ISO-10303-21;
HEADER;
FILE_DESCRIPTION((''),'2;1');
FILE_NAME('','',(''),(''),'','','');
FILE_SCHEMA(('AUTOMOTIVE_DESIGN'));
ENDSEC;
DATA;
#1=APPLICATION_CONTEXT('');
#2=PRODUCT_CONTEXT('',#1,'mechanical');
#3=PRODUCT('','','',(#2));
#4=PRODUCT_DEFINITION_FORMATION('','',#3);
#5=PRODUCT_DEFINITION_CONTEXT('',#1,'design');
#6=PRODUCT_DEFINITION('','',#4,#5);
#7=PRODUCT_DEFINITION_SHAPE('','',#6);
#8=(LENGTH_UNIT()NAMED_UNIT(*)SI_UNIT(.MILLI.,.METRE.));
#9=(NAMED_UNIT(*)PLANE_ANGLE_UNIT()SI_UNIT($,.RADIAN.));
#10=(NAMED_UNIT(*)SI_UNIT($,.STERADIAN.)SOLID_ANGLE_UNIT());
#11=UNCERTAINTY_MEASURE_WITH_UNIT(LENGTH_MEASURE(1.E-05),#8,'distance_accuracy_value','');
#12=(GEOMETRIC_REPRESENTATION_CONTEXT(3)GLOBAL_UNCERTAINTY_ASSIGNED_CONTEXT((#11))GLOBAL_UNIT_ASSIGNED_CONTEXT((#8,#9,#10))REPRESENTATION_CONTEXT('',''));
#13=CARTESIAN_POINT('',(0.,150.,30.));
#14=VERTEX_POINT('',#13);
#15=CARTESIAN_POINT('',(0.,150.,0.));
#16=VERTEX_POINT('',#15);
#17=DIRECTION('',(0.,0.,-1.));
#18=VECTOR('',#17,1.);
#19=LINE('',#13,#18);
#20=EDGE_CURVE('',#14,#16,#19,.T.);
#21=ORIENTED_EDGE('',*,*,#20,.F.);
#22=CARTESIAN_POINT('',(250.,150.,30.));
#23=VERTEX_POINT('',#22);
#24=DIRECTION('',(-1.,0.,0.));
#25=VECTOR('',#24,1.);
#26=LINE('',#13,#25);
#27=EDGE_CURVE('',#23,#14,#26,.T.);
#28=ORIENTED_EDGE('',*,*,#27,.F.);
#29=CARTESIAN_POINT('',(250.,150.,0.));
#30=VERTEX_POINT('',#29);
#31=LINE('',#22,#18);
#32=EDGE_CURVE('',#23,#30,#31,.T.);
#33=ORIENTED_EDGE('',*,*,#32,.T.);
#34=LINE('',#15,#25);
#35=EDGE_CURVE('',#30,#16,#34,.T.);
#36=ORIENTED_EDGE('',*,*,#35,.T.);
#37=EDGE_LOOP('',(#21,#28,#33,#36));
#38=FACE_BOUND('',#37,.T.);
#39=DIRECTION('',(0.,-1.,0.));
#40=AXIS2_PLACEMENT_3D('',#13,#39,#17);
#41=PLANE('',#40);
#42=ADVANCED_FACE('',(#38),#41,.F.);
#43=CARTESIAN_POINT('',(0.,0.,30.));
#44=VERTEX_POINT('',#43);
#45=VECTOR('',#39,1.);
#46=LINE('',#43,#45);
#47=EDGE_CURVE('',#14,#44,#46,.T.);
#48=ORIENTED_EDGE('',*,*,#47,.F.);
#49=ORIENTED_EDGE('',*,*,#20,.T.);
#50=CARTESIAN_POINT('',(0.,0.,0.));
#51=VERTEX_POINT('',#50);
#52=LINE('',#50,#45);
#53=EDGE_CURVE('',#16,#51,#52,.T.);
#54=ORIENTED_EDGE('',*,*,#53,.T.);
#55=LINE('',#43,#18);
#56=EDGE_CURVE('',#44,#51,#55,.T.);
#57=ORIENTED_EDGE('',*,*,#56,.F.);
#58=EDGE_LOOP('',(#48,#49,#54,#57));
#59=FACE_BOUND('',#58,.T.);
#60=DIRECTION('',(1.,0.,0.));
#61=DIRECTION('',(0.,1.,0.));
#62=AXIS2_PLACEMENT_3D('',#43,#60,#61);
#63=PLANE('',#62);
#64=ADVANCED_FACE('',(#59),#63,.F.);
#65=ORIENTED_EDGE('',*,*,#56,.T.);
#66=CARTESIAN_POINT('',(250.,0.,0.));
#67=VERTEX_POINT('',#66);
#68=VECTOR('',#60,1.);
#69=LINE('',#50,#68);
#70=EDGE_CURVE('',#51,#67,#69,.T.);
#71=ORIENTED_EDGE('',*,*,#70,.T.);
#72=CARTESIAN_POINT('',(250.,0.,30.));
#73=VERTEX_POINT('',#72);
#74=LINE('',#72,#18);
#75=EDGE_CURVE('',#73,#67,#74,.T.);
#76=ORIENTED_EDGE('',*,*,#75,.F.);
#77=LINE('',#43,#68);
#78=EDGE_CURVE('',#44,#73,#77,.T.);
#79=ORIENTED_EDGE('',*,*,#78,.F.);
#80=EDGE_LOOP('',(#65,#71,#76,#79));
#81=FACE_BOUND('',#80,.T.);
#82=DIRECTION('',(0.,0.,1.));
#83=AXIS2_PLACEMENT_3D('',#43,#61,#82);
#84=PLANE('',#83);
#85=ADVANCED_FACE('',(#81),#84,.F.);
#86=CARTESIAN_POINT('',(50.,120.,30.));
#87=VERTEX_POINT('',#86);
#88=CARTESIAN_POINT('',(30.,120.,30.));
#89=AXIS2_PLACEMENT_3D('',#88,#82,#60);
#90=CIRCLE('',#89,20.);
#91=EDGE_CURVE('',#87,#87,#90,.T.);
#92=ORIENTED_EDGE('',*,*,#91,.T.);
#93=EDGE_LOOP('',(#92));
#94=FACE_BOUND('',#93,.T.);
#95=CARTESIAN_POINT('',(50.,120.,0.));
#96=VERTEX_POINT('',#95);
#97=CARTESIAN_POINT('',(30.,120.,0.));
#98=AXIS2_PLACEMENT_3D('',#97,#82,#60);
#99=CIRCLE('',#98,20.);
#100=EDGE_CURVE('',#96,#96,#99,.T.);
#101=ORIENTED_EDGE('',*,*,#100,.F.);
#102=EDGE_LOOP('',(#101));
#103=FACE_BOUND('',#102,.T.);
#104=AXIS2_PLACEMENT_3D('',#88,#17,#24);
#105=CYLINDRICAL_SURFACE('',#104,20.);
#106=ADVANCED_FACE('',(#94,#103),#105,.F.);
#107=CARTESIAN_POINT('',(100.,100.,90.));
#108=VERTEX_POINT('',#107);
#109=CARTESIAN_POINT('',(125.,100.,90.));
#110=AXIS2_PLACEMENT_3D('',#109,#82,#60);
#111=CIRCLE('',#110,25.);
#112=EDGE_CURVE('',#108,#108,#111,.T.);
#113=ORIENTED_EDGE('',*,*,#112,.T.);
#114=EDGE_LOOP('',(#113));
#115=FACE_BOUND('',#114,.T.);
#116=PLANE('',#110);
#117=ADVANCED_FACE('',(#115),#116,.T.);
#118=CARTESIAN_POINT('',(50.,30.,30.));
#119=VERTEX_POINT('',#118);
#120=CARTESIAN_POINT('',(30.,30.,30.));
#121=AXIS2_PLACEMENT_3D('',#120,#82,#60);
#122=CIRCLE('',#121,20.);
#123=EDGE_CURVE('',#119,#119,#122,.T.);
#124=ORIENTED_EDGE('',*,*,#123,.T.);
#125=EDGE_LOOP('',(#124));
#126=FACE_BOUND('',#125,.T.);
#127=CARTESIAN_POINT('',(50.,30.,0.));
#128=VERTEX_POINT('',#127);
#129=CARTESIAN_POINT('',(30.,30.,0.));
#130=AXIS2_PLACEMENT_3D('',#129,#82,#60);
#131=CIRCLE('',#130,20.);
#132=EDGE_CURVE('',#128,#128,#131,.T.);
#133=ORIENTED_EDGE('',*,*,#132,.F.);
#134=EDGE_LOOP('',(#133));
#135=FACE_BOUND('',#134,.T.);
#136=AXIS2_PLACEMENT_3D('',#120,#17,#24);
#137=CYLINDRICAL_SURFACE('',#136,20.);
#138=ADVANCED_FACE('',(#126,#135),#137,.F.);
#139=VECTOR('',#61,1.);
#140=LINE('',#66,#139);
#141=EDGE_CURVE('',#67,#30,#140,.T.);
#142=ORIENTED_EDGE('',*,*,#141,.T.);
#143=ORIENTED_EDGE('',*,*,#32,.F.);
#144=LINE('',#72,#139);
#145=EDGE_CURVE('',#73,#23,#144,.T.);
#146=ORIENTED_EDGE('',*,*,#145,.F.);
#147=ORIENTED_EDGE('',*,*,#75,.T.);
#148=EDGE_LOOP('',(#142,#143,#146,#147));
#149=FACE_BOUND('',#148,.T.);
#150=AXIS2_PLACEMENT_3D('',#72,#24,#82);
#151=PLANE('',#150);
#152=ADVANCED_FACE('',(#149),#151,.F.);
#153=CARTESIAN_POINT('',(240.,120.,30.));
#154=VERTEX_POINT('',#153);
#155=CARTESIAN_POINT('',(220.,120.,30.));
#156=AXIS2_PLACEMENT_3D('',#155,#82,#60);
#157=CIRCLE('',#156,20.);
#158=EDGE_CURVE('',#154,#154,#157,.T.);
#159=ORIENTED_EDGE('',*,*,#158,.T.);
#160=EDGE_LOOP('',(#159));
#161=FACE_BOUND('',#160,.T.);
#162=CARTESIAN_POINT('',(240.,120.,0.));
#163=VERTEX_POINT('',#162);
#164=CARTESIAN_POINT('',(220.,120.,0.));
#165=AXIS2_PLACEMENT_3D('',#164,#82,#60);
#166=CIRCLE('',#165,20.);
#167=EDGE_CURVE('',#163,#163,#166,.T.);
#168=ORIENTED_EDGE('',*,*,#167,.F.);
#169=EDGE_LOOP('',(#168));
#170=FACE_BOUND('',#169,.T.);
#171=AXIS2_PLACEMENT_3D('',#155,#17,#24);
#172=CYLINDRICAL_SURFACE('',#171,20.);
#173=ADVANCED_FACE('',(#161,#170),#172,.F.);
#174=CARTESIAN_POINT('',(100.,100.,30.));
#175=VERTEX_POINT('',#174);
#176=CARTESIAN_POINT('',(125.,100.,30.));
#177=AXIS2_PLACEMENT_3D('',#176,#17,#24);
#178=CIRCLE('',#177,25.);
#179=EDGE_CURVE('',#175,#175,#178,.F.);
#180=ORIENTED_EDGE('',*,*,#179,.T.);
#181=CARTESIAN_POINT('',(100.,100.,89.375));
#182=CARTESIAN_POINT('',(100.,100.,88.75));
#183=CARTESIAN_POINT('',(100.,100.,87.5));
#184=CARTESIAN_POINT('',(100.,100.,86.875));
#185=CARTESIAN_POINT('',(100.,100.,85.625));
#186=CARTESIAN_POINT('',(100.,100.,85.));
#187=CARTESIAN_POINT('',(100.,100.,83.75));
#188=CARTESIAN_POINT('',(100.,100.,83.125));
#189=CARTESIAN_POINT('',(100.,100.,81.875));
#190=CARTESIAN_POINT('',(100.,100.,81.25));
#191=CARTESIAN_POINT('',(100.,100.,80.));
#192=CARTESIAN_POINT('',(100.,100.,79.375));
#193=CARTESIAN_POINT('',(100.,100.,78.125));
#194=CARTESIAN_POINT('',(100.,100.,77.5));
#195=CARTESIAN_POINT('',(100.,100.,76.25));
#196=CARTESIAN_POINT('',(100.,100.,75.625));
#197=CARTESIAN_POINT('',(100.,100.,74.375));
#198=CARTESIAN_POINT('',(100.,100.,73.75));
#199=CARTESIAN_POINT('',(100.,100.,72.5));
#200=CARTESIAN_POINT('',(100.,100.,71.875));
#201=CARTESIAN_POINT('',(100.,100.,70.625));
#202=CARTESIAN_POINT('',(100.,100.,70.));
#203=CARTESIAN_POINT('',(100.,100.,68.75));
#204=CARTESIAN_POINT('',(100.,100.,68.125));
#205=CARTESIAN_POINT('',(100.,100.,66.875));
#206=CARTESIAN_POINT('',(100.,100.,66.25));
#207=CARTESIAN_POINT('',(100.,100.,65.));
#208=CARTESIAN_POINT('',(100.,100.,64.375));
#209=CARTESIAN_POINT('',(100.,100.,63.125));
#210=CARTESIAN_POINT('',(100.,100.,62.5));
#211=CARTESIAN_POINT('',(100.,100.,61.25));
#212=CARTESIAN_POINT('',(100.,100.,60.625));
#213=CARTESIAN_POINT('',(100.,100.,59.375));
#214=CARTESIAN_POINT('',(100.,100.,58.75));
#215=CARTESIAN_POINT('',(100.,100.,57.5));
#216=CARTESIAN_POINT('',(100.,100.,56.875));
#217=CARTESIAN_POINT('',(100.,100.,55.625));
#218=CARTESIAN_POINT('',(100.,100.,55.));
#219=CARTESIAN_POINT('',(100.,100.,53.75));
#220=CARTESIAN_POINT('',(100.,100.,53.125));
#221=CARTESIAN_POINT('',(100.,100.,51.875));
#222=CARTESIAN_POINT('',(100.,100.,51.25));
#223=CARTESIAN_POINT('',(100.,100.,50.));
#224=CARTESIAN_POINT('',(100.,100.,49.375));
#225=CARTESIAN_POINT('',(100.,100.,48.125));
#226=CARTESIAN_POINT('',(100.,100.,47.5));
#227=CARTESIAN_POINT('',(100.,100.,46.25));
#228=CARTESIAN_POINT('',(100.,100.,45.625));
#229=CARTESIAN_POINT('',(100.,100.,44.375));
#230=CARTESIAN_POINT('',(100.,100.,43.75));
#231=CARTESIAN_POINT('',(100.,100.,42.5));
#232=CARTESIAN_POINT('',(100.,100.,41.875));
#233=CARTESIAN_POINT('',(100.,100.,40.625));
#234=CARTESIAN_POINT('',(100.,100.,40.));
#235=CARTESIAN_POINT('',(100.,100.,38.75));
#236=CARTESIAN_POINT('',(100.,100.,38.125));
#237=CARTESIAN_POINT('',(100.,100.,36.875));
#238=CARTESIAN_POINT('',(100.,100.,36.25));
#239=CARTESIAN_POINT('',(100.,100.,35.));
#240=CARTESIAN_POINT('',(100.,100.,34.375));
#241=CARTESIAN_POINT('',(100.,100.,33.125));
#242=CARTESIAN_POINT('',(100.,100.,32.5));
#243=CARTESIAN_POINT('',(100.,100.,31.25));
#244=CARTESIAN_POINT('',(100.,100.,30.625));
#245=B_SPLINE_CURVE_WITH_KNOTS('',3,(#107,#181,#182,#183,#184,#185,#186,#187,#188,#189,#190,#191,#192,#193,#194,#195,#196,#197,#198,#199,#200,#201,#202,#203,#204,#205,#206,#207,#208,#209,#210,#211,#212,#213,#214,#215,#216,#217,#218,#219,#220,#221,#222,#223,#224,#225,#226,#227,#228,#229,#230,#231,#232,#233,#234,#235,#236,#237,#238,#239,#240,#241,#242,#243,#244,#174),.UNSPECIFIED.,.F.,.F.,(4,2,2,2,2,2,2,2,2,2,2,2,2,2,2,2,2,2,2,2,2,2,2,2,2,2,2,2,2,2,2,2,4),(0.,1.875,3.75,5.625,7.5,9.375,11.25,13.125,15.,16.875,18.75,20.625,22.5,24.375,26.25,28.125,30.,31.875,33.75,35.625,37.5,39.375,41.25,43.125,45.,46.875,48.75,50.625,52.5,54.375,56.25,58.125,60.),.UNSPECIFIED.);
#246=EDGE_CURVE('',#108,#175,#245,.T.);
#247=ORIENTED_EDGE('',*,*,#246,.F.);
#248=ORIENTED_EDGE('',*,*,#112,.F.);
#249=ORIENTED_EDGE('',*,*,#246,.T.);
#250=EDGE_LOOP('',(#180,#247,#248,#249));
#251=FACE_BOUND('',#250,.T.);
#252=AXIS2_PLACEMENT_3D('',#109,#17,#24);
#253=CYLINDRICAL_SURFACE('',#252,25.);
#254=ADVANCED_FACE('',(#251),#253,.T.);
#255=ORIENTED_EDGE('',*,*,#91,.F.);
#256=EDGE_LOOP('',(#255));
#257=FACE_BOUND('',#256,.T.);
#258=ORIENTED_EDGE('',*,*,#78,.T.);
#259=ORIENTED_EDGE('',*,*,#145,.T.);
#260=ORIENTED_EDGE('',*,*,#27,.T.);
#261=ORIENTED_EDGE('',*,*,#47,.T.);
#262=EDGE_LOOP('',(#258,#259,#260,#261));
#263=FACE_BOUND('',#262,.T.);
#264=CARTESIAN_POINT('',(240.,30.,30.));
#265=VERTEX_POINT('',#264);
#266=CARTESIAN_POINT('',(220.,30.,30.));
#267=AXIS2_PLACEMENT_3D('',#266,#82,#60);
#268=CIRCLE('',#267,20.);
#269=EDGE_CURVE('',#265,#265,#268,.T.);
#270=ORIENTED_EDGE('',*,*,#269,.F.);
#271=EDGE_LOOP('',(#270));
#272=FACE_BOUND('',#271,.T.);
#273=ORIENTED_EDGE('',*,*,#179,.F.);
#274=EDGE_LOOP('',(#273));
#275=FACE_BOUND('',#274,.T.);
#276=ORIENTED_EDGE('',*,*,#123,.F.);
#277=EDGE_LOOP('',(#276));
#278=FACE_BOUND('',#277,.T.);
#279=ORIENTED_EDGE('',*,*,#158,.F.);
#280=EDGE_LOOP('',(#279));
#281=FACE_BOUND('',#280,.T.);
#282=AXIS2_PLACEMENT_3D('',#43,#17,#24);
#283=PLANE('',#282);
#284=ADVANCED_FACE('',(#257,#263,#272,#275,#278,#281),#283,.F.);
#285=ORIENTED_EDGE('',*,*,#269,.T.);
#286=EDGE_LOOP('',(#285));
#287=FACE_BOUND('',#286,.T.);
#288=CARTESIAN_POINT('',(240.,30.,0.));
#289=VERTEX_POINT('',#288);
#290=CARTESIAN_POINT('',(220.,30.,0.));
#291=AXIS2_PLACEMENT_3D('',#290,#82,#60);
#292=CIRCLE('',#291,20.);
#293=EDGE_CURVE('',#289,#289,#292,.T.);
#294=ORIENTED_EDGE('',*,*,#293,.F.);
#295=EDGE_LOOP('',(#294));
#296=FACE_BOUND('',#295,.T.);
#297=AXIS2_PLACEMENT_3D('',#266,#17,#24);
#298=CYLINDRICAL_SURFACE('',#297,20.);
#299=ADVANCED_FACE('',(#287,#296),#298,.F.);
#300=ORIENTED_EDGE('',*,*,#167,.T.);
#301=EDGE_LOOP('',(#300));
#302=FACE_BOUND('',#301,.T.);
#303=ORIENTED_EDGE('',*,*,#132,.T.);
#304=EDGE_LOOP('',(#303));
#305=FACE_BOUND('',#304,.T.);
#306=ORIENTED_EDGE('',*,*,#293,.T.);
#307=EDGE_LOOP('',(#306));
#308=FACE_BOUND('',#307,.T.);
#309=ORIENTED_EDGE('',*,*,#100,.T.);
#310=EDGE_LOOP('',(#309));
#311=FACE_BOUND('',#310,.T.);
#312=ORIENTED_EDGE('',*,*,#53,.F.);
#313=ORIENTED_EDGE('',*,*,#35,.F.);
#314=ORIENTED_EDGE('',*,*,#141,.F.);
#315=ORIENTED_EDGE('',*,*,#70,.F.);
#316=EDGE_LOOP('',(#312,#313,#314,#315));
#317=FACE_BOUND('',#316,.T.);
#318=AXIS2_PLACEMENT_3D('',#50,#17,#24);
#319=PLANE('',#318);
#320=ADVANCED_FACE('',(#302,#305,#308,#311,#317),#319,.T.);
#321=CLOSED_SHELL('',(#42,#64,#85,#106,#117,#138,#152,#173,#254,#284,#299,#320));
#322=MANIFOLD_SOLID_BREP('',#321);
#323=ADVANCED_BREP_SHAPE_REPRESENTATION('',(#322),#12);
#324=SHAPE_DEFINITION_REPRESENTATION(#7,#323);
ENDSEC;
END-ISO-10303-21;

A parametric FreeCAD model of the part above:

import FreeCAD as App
import Part
import Sketcher
Q = App.Units.Quantity


def add_polygon(sketch, points):
    """Adds a closed chain of lines whose ends are joined by coincident constraints."""
    first, n = sketch.GeometryCount, len(points)
    for a, b in zip(points, points[1:] + points[:1]):
        sketch.addGeometry(Part.LineSegment(App.Vector(*a, 0), App.Vector(*b, 0)), False)
    for i in range(n):
        sketch.addConstraint(Sketcher.Constraint("Coincident", first + i, 2, first + (i + 1) % n, 1))

doc = App.newDocument("Part")
body = doc.addObject("PartDesign::Body", "Body")

# Sketch on XY plane
sketch1 = body.newObject("Sketcher::SketchObject", "Sketch")
sketch1.AttachmentSupport = (doc.getObject("XY_Plane"), [""])
sketch1.MapMode = "FlatFace"
add_polygon(sketch1, [(0, 150), (0, 0), (250, 0), (250, 150)])  # lines 0-3
sketch1.addGeometry(Part.Circle(App.Vector(30, 30, 0), App.Vector(0, 0, 1), 20), False)  # 4
sketch1.addGeometry(Part.Circle(App.Vector(220, 30, 0), App.Vector(0, 0, 1), 20), False)  # 5
sketch1.addGeometry(Part.Circle(App.Vector(30, 120, 0), App.Vector(0, 0, 1), 20), False)  # 6
sketch1.addGeometry(Part.Circle(App.Vector(220, 120, 0), App.Vector(0, 0, 1), 20), False)  # 7
sketch1.addConstraint([
    Sketcher.Constraint("Vertical", 0),
    Sketcher.Constraint("Horizontal", 1),
    Sketcher.Constraint("Vertical", 2),
    Sketcher.Constraint("Horizontal", 3),
    Sketcher.Constraint("Coincident", 0, 2, -1, 1),
    Sketcher.Constraint("Equal", 4, 5),
    Sketcher.Constraint("Equal", 5, 6),
    Sketcher.Constraint("Equal", 6, 7),
    Sketcher.Constraint("Horizontal", 4, 3, 5, 3),
    Sketcher.Constraint("Horizontal", 6, 3, 7, 3),
    Sketcher.Constraint("Vertical", 4, 3, 6, 3),
    Sketcher.Constraint("Vertical", 5, 3, 7, 3),
    Sketcher.Constraint("Diameter", 4, Q("40 mm")),
    Sketcher.Constraint("DistanceX", 1, 1, 1, 2, Q("250 mm")),
    Sketcher.Constraint("DistanceY", 0, 2, 0, 1, Q("150 mm")),
    Sketcher.Constraint("DistanceX", -1, 1, 4, 3, Q("30 mm")),
    Sketcher.Constraint("DistanceY", -1, 1, 4, 3, Q("30 mm")),
    Sketcher.Constraint("DistanceX", -1, 1, 5, 3, Q("220 mm")),
    Sketcher.Constraint("DistanceY", -1, 1, 6, 3, Q("120 mm")),
])
pad1 = body.newObject("PartDesign::Pad", "Pad")
pad1.Profile = sketch1
pad1.Length = 30

# Sketch on XY plane
sketch2 = body.newObject("Sketcher::SketchObject", "Sketch001")
sketch2.AttachmentSupport = (doc.getObject("XY_Plane"), [""])
sketch2.MapMode = "FlatFace"
sketch2.addGeometry(Part.Circle(App.Vector(125, 100, 0), App.Vector(0, 0, 1), 25), False)
sketch2.addConstraint([
    Sketcher.Constraint("Diameter", 0, Q("50 mm")),
    Sketcher.Constraint("DistanceX", -1, 1, 0, 3, Q("125 mm")),
    Sketcher.Constraint("DistanceY", -1, 1, 0, 3, Q("100 mm")),
])
pad2 = body.newObject("PartDesign::Pad", "Pad001")
pad2.Profile = sketch2
pad2.Length = 90

doc.recompute()
